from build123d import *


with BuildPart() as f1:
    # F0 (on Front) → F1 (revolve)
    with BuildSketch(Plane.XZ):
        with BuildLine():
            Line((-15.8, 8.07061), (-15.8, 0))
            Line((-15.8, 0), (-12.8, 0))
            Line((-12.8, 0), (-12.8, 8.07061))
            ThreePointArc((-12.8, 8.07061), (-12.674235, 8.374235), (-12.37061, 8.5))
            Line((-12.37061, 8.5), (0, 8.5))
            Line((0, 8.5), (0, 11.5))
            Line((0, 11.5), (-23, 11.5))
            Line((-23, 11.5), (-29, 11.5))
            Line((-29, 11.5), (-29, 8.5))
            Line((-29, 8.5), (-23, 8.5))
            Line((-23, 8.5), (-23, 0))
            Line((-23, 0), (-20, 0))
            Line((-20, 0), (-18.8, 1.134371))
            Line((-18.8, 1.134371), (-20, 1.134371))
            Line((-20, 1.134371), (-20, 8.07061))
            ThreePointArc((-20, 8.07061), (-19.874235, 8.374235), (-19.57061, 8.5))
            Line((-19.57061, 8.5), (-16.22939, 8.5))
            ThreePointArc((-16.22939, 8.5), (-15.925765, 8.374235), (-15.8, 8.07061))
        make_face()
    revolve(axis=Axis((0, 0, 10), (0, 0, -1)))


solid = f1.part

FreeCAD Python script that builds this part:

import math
import FreeCAD as App
import Part
import Sketcher

V = App.Vector

doc = App.newDocument("Part")
body = doc.addObject("PartDesign::Body", "Body")

# Sketch on XZ plane
sketch1 = doc.addObject("Sketcher::SketchObject", "Sketch")
body.addObject(sketch1)
sketch1.AttachmentSupport = (doc.XZ_Plane, [""])
sketch1.MapMode = "FlatFace"
sketch1.addGeometry([
    Part.LineSegment(V(-15.8, 8.07061, 0), V(-15.8, 0, 0)),  # 0
    Part.LineSegment(V(-15.8, 0, 0), V(-12.8, 0, 0)),  # 1
    Part.LineSegment(V(-12.8, 0, 0), V(-12.8, 8.07061, 0)),  # 2
    Part.ArcOfCircle(Part.Circle(V(-12.370611, 8.070611, 0), V(0, 0, 1), 0.429389), math.radians(89.999809), math.radians(180.000191)),  # 3
    Part.LineSegment(V(-12.37061, 8.5, 0), V(0, 8.5, 0)),  # 4
    Part.LineSegment(V(0, 8.5, 0), V(0, 11.5, 0)),  # 5
    Part.LineSegment(V(0, 11.5, 0), V(-29, 11.5, 0)),  # 6
    Part.LineSegment(V(-29, 11.5, 0), V(-29, 8.5, 0)),  # 7
    Part.LineSegment(V(-29, 8.5, 0), V(-23, 8.5, 0)),  # 8
    Part.LineSegment(V(-23, 8.5, 0), V(-23, 0, 0)),  # 9
    Part.LineSegment(V(-23, 0, 0), V(-20, 0, 0)),  # 10
    Part.LineSegment(V(-20, 0, 0), V(-18.8, 1.134371, 0)),  # 11
    Part.LineSegment(V(-18.8, 1.134371, 0), V(-20, 1.134371, 0)),  # 12
    Part.LineSegment(V(-20, 1.134371, 0), V(-20, 8.07061, 0)),  # 13
    Part.ArcOfCircle(Part.Circle(V(-19.570611, 8.070611, 0), V(0, 0, 1), 0.429389), math.radians(89.999809), math.radians(180.000191)),  # 14
    Part.LineSegment(V(-19.57061, 8.5, 0), V(-16.22939, 8.5, 0)),  # 15
    Part.ArcOfCircle(Part.Circle(V(-16.229389, 8.070611, 0), V(0, 0, 1), 0.429389), math.radians(-0.000191), math.radians(90.000191)),  # 16
], False)
sketch1.addConstraint([
    Sketcher.Constraint("Coincident", 0, 2, 1, 1),
    Sketcher.Constraint("Coincident", 1, 2, 2, 1),
    Sketcher.Constraint("Coincident", 2, 2, 3, 2),
    Sketcher.Constraint("Coincident", 3, 1, 4, 1),
    Sketcher.Constraint("Coincident", 4, 2, 5, 1),
    Sketcher.Constraint("Coincident", 5, 2, 6, 1),
    Sketcher.Constraint("Coincident", 6, 2, 7, 1),
    Sketcher.Constraint("Coincident", 7, 2, 8, 1),
    Sketcher.Constraint("Coincident", 8, 2, 9, 1),
    Sketcher.Constraint("Coincident", 9, 2, 10, 1),
    Sketcher.Constraint("Coincident", 10, 2, 11, 1),
    Sketcher.Constraint("Coincident", 11, 2, 12, 1),
    Sketcher.Constraint("Coincident", 12, 2, 13, 1),
    Sketcher.Constraint("Coincident", 13, 2, 14, 2),
    Sketcher.Constraint("Coincident", 14, 1, 15, 1),
    Sketcher.Constraint("Coincident", 15, 2, 16, 2),
    Sketcher.Constraint("Coincident", 16, 1, 0, 1),
    Sketcher.Constraint("Vertical", 0),
    Sketcher.Constraint("Horizontal", 1),
    Sketcher.Constraint("Vertical", 2),
    Sketcher.Constraint("Horizontal", 4),
    Sketcher.Constraint("Vertical", 5),
    Sketcher.Constraint("Horizontal", 6),
    Sketcher.Constraint("Vertical", 7),
    Sketcher.Constraint("Horizontal", 8),
    Sketcher.Constraint("Vertical", 9),
    Sketcher.Constraint("Horizontal", 10),
    Sketcher.Constraint("Horizontal", 12),
    Sketcher.Constraint("Vertical", 13),
    Sketcher.Constraint("Horizontal", 15),
    Sketcher.Constraint("Equal", 3, 14),
    Sketcher.Constraint("Equal", 14, 16),
    Sketcher.Constraint("PointOnObject", 0, 2, -1),
    Sketcher.Constraint("PointOnObject", 4, 2, -2),
    Sketcher.Constraint("PointOnObject", 9, 2, -1),
    Sketcher.Constraint("Horizontal", 3, 3, 14, 3),
    Sketcher.Constraint("Horizontal", 16, 3, 2, 2),
    Sketcher.Constraint("Horizontal", 4, 2, 7, 2),
    Sketcher.Constraint("Horizontal", 2, 2, 13, 2),
    Sketcher.Constraint("Horizontal", 13, 2, 16, 1),
    Sketcher.Constraint("Vertical", 10, 2, 12, 2),
    Sketcher.Constraint("Vertical", 16, 3, 15, 2),
    Sketcher.Constraint("Equal", 1, 10),
    Sketcher.Constraint("Equal", 10, 5),
    Sketcher.Constraint("DistanceX", 1, 1, 1, 2, 3.0),
    Sketcher.Constraint("DistanceX", 6, 2, 6, 1, 29.0),
    Sketcher.Constraint("DistanceX", 8, 1, 8, 2, 6.0),
    Sketcher.Constraint("DistanceX", 12, 2, 12, 1, 1.2),
    Sketcher.Constraint("DistanceY", 9, 2, 9, 1, 8.5),
    Sketcher.Constraint("DistanceX", 11, 2, 0, 2, 3.0),
    Sketcher.Constraint("DistanceX", 14, 3, 3, 1, 7.200001),
    Sketcher.Constraint("Radius", 3, 0.429389),
    Sketcher.Constraint("Distance", 11, 1.651302),
    Sketcher.Constraint("DistanceX", 15, 1, 15, 2, 3.34122),
])
revolution = doc.addObject("PartDesign::Revolution", "Revolution")
body.addObject(revolution)
revolution.Profile = sketch1
revolution.ReferenceAxis = (sketch1, ["V_Axis"])
revolution.Angle = 360

doc.recompute()
